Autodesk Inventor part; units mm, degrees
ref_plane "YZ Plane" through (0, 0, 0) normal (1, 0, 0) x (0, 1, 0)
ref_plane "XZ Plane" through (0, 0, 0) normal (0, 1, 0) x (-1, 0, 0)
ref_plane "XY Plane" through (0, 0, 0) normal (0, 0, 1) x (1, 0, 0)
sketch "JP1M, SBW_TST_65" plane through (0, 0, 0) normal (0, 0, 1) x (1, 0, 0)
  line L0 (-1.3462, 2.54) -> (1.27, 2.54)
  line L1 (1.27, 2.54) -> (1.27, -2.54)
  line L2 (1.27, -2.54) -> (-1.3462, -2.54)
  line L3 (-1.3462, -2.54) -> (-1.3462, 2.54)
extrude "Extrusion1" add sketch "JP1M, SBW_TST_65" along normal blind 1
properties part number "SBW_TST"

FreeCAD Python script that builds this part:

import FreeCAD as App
import Part
import Sketcher
from FreeCAD import Vector
Q = App.Units.Quantity

doc = App.newDocument("Part")
body = doc.addObject("PartDesign::Body", "Body")

sketch1 = body.newObject("Sketcher::SketchObject", "Sketch")
sketch1.AttachmentSupport = (doc.getObject("XY_Plane"), [""])
sketch1.MapMode = "FlatFace"
sketch1.addGeometry([
    Part.LineSegment(Vector(1.27, 2.54, 0), Vector(-1.3462, 2.54, 0)),
    Part.LineSegment(Vector(-1.3462, 2.54, 0), Vector(-1.3462, -2.54, 0)),
    Part.LineSegment(Vector(-1.3462, -2.54, 0), Vector(1.27, -2.54, 0)),
    Part.LineSegment(Vector(1.27, -2.54, 0), Vector(1.27, 2.54, 0)),
], False)
sketch1.addConstraint([
    Sketcher.Constraint("Coincident", 0, 2, 1, 1),
    Sketcher.Constraint("Coincident", 1, 2, 2, 1),
    Sketcher.Constraint("Coincident", 2, 2, 3, 1),
    Sketcher.Constraint("Coincident", 3, 2, 0, 1),
    Sketcher.Constraint("Horizontal", 0),
    Sketcher.Constraint("Vertical", 1),
    Sketcher.Constraint("Horizontal", 2),
    Sketcher.Constraint("Vertical", 3),
    Sketcher.Constraint("DistanceY", 1, 2, 1, 1, Q("0.2 in")),
    Sketcher.Constraint("DistanceY", -1, 1, 0, 2, Q("0.1 in")),
    Sketcher.Constraint("DistanceX", 0, 2, 0, 1, Q("0.103 in")),
    Sketcher.Constraint("DistanceX", -1, 1, 2, 2, Q("0.05 in")),
])
pad1 = body.newObject("PartDesign::Pad", "Pad")
pad1.Profile = sketch1
pad1.Length = 1

doc.recompute()
